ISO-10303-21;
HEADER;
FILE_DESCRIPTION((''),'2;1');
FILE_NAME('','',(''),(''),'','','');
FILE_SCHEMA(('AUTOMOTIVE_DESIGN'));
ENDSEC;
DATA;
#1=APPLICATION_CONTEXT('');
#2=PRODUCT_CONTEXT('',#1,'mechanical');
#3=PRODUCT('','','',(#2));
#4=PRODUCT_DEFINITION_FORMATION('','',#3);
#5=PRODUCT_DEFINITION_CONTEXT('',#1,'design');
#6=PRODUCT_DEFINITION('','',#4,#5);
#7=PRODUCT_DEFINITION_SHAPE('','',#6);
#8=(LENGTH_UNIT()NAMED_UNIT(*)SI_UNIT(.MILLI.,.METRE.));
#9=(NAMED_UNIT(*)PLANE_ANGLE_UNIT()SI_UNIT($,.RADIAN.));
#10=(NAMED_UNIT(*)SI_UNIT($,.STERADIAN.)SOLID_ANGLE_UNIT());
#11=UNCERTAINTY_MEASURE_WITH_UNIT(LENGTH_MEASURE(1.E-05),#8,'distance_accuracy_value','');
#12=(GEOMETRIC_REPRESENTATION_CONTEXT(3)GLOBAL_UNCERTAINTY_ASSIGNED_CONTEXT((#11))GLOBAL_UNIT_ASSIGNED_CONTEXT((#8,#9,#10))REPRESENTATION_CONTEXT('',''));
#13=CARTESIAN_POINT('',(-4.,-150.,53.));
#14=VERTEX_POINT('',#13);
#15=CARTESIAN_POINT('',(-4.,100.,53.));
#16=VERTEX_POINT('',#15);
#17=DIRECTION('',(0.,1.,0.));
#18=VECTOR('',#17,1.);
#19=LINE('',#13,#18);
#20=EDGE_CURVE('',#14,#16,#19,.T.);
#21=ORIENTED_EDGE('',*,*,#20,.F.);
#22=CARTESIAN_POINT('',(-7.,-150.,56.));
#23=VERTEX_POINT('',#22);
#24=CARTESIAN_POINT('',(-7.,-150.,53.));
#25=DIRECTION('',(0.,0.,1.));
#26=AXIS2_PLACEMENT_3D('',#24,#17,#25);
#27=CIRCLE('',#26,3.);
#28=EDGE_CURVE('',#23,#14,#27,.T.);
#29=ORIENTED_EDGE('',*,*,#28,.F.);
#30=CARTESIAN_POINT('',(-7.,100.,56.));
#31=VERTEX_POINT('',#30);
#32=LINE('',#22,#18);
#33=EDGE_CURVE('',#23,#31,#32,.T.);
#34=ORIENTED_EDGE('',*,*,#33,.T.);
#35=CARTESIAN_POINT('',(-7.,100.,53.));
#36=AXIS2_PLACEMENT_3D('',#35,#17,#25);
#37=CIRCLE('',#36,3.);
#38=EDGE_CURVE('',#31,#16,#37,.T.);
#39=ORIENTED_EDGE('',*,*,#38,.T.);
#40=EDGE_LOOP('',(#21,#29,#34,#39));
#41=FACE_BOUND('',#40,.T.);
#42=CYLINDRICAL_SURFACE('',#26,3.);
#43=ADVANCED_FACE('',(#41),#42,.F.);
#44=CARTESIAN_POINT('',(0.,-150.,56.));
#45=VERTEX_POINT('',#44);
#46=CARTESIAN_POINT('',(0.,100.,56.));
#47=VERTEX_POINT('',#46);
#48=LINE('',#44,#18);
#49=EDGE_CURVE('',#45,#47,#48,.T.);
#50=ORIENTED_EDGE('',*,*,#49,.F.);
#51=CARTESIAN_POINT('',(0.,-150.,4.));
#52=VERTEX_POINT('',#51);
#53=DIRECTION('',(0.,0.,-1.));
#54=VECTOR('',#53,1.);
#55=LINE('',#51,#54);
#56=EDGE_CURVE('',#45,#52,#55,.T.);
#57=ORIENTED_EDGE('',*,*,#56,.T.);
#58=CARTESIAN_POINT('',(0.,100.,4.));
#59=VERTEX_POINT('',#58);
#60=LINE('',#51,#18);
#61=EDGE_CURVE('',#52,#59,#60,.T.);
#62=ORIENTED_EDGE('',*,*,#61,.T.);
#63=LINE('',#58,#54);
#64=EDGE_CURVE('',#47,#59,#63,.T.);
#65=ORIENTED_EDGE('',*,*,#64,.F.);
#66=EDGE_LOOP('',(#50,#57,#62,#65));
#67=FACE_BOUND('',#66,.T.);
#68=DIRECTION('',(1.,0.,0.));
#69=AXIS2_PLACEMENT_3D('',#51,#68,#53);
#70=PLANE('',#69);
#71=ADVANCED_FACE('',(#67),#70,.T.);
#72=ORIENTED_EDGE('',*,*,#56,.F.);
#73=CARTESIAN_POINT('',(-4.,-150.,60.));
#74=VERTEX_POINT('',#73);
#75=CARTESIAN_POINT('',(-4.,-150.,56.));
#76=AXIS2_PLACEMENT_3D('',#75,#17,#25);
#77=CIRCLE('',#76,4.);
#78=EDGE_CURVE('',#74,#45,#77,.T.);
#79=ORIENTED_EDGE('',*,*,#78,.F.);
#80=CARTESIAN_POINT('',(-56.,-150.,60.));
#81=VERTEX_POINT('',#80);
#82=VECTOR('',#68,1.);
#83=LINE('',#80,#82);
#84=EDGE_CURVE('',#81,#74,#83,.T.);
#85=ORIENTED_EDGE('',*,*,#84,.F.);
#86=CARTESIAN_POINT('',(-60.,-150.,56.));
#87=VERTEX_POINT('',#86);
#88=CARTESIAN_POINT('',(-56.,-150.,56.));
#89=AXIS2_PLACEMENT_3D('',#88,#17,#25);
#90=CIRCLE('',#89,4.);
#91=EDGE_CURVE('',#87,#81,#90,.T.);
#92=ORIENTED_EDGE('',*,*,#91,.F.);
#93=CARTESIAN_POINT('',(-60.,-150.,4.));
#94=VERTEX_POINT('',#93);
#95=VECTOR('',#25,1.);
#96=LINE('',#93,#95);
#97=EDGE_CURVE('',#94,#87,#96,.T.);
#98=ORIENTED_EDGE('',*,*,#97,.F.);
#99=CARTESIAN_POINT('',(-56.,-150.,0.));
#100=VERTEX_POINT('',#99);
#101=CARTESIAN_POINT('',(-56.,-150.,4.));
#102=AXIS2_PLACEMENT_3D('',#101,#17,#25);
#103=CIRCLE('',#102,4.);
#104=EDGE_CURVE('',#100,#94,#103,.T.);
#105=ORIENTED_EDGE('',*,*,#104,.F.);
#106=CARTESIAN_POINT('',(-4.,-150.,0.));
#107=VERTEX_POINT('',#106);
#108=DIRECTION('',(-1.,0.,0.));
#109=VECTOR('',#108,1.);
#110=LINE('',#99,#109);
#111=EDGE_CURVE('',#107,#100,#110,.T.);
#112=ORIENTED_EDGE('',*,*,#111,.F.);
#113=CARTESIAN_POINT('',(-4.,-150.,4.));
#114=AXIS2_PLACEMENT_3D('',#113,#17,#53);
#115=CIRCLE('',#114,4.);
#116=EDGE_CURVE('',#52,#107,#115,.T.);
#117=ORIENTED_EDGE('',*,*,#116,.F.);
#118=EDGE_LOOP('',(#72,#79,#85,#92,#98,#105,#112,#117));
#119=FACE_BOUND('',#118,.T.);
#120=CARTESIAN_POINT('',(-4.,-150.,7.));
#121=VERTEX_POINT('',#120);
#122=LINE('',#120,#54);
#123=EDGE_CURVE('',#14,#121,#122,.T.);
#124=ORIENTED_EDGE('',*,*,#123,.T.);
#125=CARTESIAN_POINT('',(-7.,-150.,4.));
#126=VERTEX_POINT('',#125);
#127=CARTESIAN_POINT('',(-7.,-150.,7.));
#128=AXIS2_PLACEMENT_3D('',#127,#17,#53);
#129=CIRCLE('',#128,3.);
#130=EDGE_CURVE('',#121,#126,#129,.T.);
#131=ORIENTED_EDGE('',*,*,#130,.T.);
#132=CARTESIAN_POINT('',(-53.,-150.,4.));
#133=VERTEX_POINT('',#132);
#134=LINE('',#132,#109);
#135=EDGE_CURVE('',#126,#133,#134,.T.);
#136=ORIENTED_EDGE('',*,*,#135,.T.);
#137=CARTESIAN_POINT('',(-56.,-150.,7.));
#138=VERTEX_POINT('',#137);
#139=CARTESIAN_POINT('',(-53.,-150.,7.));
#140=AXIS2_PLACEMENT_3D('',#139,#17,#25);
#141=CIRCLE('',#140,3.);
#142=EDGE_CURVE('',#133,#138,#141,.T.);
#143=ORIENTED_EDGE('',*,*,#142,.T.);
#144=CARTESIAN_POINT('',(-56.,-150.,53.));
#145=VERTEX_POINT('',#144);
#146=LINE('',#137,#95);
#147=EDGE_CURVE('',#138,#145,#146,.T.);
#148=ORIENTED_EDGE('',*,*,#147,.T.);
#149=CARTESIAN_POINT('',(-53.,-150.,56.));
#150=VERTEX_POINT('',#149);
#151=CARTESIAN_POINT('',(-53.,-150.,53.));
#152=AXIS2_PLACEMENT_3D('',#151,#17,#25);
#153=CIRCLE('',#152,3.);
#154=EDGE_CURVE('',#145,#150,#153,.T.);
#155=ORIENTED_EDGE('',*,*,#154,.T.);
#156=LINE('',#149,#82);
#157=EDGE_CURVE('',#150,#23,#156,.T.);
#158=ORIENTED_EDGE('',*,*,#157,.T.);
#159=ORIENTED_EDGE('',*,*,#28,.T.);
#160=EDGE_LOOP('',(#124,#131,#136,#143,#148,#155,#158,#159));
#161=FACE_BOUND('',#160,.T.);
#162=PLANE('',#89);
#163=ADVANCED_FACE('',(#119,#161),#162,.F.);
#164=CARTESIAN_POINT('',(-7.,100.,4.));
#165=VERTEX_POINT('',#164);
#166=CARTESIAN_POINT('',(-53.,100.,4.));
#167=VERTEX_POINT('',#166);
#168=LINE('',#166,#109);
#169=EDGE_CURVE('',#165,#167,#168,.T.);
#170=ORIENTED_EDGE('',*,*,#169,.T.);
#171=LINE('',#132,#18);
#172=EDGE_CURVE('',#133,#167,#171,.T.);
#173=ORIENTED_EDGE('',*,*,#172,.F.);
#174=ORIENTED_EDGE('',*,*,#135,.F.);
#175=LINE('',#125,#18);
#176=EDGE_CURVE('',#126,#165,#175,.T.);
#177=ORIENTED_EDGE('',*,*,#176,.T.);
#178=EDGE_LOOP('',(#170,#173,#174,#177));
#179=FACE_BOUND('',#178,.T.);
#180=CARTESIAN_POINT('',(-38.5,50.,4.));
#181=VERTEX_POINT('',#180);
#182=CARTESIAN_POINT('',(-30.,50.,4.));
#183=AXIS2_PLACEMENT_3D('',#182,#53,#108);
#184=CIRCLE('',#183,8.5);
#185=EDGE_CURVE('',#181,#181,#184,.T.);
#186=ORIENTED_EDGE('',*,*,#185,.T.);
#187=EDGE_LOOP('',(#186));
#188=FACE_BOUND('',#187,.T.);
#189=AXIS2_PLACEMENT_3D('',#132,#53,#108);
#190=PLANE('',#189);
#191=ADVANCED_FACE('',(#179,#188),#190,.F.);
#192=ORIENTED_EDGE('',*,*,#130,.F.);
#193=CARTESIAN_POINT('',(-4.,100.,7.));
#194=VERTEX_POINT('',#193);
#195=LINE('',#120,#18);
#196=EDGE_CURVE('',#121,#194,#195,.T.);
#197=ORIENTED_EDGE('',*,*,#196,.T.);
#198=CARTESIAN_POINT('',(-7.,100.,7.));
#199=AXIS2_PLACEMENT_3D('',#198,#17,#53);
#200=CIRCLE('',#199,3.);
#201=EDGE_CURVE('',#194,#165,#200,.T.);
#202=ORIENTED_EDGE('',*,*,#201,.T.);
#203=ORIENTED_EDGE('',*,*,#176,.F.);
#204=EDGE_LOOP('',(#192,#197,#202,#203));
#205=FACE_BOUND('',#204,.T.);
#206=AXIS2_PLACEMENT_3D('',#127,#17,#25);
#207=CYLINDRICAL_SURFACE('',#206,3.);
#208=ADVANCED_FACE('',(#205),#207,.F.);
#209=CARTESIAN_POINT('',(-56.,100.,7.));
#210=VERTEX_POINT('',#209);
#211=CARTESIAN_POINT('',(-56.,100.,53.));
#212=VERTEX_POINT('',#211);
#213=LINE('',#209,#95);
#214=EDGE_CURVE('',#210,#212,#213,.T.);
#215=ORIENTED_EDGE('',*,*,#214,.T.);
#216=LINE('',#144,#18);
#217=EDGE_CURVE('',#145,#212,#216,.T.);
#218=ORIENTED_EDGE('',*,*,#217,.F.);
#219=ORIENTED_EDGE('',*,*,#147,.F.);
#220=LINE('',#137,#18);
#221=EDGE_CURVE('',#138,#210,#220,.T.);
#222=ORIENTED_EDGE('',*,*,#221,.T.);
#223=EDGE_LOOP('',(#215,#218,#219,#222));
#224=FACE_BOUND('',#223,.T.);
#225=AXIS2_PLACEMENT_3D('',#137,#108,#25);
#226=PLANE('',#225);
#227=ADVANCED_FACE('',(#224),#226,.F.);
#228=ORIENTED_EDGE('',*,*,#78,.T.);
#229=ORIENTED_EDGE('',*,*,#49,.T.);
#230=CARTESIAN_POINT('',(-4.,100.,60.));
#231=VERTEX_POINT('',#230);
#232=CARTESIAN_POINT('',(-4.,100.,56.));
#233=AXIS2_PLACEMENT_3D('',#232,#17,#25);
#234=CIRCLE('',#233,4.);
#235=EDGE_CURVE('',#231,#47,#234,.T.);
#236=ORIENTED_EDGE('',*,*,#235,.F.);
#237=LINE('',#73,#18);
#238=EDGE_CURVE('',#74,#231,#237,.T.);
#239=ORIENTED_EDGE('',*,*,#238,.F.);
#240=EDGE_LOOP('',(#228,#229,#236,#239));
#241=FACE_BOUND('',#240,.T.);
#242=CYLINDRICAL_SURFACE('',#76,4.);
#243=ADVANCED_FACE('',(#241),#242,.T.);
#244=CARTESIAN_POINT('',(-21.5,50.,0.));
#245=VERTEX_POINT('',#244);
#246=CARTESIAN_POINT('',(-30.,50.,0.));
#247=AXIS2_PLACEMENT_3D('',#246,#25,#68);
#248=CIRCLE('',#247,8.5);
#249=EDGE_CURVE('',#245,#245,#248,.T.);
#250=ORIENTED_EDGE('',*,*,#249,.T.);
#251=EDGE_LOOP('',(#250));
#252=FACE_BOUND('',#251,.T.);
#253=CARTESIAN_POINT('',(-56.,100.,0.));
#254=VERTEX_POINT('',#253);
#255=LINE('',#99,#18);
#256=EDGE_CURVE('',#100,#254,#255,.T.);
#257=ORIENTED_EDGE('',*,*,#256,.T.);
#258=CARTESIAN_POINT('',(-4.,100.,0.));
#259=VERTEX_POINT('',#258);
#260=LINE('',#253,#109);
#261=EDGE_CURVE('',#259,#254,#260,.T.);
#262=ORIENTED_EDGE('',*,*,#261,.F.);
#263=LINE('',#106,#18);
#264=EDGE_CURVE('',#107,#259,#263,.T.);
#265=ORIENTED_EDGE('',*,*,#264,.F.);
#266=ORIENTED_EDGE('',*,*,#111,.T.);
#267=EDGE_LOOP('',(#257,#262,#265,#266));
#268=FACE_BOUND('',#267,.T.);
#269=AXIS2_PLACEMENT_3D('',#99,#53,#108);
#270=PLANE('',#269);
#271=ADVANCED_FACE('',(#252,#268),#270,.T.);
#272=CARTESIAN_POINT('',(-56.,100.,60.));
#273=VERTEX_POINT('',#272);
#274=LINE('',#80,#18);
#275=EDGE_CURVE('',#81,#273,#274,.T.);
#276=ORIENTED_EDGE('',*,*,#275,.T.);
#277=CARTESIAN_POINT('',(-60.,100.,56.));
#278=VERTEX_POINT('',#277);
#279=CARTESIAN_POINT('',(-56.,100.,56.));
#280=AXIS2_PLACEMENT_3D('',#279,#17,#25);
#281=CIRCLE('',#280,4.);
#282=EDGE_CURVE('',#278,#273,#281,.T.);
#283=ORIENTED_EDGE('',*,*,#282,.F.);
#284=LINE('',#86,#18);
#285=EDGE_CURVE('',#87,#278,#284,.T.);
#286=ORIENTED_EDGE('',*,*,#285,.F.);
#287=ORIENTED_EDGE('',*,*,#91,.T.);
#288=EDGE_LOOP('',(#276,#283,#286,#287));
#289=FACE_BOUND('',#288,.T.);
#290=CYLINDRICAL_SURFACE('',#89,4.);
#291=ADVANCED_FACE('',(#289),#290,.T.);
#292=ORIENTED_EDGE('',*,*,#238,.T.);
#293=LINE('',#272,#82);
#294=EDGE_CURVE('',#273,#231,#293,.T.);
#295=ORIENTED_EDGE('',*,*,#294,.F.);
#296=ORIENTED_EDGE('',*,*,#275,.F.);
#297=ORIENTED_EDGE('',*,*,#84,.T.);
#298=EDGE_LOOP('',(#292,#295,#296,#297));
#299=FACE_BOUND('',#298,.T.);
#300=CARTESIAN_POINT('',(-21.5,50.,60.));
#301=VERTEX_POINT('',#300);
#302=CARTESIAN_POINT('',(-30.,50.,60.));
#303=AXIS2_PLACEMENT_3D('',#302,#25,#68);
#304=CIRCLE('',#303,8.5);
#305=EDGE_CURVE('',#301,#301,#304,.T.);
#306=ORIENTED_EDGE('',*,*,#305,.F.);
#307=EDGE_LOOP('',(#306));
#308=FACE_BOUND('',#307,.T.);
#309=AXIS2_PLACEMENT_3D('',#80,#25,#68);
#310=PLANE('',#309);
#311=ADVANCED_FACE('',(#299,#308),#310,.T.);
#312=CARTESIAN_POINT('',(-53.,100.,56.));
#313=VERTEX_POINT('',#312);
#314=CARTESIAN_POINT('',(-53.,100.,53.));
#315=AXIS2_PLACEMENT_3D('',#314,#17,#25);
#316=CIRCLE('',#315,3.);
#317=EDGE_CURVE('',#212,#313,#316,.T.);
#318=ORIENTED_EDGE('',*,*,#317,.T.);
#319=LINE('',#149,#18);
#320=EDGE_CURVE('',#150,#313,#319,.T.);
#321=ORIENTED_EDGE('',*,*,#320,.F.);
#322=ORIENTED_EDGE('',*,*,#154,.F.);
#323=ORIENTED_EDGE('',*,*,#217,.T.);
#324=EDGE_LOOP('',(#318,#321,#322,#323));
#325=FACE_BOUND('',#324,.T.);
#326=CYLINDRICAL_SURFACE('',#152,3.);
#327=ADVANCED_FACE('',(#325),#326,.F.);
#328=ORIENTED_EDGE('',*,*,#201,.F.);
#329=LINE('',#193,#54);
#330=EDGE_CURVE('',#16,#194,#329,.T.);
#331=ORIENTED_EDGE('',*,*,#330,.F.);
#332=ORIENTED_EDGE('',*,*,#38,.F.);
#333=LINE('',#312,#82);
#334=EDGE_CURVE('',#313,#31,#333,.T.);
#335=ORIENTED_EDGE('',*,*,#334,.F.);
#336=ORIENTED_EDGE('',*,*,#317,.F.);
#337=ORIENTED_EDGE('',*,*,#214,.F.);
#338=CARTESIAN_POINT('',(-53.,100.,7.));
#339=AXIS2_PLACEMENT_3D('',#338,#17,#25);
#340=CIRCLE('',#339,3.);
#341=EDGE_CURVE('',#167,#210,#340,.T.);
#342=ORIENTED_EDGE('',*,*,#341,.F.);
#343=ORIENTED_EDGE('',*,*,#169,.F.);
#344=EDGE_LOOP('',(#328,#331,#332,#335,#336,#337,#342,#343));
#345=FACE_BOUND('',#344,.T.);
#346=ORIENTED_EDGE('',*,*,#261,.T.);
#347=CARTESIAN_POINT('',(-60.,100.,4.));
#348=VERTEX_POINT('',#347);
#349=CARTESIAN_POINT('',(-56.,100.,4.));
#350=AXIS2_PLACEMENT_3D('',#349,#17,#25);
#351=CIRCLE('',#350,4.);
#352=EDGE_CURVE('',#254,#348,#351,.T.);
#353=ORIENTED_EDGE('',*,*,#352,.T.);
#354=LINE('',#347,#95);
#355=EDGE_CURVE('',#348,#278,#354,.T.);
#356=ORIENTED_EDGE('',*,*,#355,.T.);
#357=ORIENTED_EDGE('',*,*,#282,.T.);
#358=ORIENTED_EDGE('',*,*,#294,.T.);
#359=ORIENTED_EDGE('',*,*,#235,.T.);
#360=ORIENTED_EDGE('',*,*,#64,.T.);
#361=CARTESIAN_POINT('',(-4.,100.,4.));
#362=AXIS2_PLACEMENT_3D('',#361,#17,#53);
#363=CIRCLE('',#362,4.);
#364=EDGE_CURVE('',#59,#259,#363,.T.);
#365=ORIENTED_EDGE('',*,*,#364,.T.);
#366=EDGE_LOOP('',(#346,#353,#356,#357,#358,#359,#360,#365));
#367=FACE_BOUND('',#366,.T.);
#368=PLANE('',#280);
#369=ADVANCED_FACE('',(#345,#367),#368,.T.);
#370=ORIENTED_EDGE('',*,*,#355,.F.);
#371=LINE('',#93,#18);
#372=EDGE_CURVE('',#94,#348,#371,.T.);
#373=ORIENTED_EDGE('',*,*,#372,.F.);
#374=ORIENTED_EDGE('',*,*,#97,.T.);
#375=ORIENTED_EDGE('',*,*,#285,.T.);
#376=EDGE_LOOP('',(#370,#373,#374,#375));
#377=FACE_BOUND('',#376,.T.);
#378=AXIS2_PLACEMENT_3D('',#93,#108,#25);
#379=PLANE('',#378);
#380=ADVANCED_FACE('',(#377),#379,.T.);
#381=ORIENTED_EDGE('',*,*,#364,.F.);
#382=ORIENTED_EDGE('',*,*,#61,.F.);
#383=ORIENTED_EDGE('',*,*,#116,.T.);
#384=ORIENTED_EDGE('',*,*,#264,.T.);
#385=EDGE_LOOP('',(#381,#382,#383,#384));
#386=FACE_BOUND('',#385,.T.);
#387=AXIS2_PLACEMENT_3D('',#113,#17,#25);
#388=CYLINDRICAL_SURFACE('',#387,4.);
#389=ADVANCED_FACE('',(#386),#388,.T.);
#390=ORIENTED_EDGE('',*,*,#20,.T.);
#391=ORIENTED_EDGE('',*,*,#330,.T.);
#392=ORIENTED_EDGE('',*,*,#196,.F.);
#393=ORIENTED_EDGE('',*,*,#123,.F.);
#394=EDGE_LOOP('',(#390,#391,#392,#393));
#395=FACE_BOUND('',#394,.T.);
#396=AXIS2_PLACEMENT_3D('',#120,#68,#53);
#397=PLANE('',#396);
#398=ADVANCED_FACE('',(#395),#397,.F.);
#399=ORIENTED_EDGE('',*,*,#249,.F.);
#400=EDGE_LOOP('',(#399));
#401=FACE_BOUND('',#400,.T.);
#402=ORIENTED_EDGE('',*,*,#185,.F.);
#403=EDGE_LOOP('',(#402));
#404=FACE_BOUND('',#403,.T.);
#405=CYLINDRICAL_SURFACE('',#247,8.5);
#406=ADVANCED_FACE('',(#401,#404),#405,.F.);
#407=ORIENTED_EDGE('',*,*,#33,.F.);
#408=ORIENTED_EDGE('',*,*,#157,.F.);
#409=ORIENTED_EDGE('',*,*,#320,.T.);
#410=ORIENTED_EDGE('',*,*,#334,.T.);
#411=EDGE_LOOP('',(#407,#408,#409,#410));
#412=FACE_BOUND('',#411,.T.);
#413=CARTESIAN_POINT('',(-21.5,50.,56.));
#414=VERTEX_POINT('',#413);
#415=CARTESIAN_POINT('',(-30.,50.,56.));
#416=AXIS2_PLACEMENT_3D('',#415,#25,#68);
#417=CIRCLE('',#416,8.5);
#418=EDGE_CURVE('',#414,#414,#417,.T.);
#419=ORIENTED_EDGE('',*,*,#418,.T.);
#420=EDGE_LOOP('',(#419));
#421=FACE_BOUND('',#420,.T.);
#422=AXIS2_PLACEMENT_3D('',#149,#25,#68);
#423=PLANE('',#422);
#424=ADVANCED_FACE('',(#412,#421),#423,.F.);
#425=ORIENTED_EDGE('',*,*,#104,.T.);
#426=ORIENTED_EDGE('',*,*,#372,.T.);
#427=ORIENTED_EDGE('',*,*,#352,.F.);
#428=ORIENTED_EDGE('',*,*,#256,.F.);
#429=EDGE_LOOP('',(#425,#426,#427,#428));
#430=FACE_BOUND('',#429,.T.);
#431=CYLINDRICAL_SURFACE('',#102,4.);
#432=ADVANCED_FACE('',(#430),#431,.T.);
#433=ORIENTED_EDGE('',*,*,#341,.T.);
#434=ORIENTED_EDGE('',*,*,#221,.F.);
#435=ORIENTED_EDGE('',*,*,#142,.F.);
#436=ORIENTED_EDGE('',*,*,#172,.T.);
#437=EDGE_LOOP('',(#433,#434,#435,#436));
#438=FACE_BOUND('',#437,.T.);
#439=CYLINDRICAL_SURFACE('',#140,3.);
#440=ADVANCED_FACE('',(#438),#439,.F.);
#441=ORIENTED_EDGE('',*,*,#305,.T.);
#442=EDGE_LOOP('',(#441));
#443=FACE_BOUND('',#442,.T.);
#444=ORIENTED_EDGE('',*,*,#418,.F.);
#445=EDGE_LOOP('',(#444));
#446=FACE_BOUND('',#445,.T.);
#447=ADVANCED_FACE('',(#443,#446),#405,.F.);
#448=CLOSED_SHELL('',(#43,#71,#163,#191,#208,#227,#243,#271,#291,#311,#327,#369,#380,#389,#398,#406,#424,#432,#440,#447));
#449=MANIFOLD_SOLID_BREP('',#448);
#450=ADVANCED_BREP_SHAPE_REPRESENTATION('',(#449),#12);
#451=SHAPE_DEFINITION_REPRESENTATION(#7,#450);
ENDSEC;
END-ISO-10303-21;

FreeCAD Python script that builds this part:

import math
import FreeCAD as App
import Part
import Sketcher
from FreeCAD import Vector

doc = App.newDocument("Part")
body = doc.addObject("PartDesign::Body", "Body")

# Sketch on XZ plane
sketch1 = body.newObject("Sketcher::SketchObject", "Sketch")
sketch1.AttachmentSupport = (doc.getObject("XZ_Plane"), [""])
sketch1.MapMode = "FlatFace"
sketch1.addGeometry(Part.LineSegment(Vector(-4, 0, 0), Vector(-56, 0, 0)), False)
sketch1.addGeometry(Part.ArcOfCircle(Part.Circle(Vector(-56, 4, 0), Vector(0, 0, 1), 4), math.radians(180), math.radians(270)), False)
sketch1.addGeometry(Part.LineSegment(Vector(-60, 4, 0), Vector(-60, 56, 0)), False)
sketch1.addGeometry(Part.ArcOfCircle(Part.Circle(Vector(-56, 56, 0), Vector(0, 0, 1), 4), math.radians(90), math.radians(180)), False)
sketch1.addGeometry(Part.LineSegment(Vector(-56, 60, 0), Vector(-4, 60, 0)), False)
sketch1.addGeometry(Part.ArcOfCircle(Part.Circle(Vector(-4, 56, 0), Vector(0, 0, 1), 4), math.radians(0), math.radians(90)), False)
sketch1.addGeometry(Part.LineSegment(Vector(0, 56, 0), Vector(0, 4, 0)), False)
sketch1.addGeometry(Part.ArcOfCircle(Part.Circle(Vector(-4, 4, 0), Vector(0, 0, 1), 4), math.radians(-90), math.radians(0)), False)
sketch1.addGeometry(Part.LineSegment(Vector(-53, 4, 0), Vector(-7, 4, 0)), False)
sketch1.addGeometry(Part.ArcOfCircle(Part.Circle(Vector(-7, 7, 0), Vector(0, 0, 1), 3), math.radians(-90), math.radians(0)), False)
sketch1.addGeometry(Part.LineSegment(Vector(-4, 7, 0), Vector(-4, 53, 0)), False)
sketch1.addGeometry(Part.ArcOfCircle(Part.Circle(Vector(-7, 53, 0), Vector(0, 0, 1), 3), math.radians(0), math.radians(90)), False)
sketch1.addGeometry(Part.LineSegment(Vector(-7, 56, 0), Vector(-53, 56, 0)), False)
sketch1.addGeometry(Part.ArcOfCircle(Part.Circle(Vector(-53, 53, 0), Vector(0, 0, 1), 3), math.radians(90), math.radians(180)), False)
sketch1.addGeometry(Part.LineSegment(Vector(-56, 53, 0), Vector(-56, 7, 0)), False)
sketch1.addGeometry(Part.ArcOfCircle(Part.Circle(Vector(-53, 7, 0), Vector(0, 0, 1), 3), math.radians(180), math.radians(270)), False)
sketch1.addConstraint(Sketcher.Constraint("Tangent", 0, 2, 1, 2))
sketch1.addConstraint(Sketcher.Constraint("Tangent", 1, 1, 2, 1))
sketch1.addConstraint(Sketcher.Constraint("Tangent", 2, 2, 3, 2))
sketch1.addConstraint(Sketcher.Constraint("Tangent", 3, 1, 4, 1))
sketch1.addConstraint(Sketcher.Constraint("Tangent", 4, 2, 5, 2))
sketch1.addConstraint(Sketcher.Constraint("Tangent", 5, 1, 6, 1))
sketch1.addConstraint(Sketcher.Constraint("Tangent", 6, 2, 7, 2))
sketch1.addConstraint(Sketcher.Constraint("Tangent", 7, 1, 0, 1))
sketch1.addConstraint(Sketcher.Constraint("Tangent", 8, 2, 9, 1))
sketch1.addConstraint(Sketcher.Constraint("Tangent", 9, 2, 10, 1))
sketch1.addConstraint(Sketcher.Constraint("Tangent", 10, 2, 11, 1))
sketch1.addConstraint(Sketcher.Constraint("Tangent", 11, 2, 12, 1))
sketch1.addConstraint(Sketcher.Constraint("Tangent", 12, 2, 13, 1))
sketch1.addConstraint(Sketcher.Constraint("Tangent", 13, 2, 14, 1))
sketch1.addConstraint(Sketcher.Constraint("Tangent", 14, 2, 15, 1))
sketch1.addConstraint(Sketcher.Constraint("Tangent", 15, 2, 8, 1))
sketch1.addConstraint(Sketcher.Constraint("Horizontal", 0))
sketch1.addConstraint(Sketcher.Constraint("Vertical", 2))
sketch1.addConstraint(Sketcher.Constraint("Horizontal", 4))
sketch1.addConstraint(Sketcher.Constraint("Vertical", 6))
sketch1.addConstraint(Sketcher.Constraint("Horizontal", 8))
sketch1.addConstraint(Sketcher.Constraint("Vertical", 10))
sketch1.addConstraint(Sketcher.Constraint("Horizontal", 12))
sketch1.addConstraint(Sketcher.Constraint("Vertical", 14))
sketch1.addConstraint(Sketcher.Constraint("Equal", 1, 3))
sketch1.addConstraint(Sketcher.Constraint("Equal", 3, 5))
sketch1.addConstraint(Sketcher.Constraint("Equal", 5, 7))
sketch1.addConstraint(Sketcher.Constraint("Equal", 9, 11))
sketch1.addConstraint(Sketcher.Constraint("Equal", 11, 13))
sketch1.addConstraint(Sketcher.Constraint("Equal", 13, 15))
sketch1.addConstraint(Sketcher.Constraint("PointOnObject", 0, 2, -1))
sketch1.addConstraint(Sketcher.Constraint("PointOnObject", 5, 1, -2))
sketch1.addConstraint(Sketcher.Constraint("Horizontal", 6, 2, 8, 2))
sketch1.addConstraint(Sketcher.Constraint("Horizontal", 5, 1, 11, 2))
sketch1.addConstraint(Sketcher.Constraint("Vertical", 7, 1, 9, 2))
sketch1.addConstraint(Sketcher.Constraint("Vertical", 3, 1, 13, 2))
sketch1.addConstraint(Sketcher.Constraint("Equal", 4, 2))
sketch1.addConstraint(Sketcher.Constraint("Radius", 1, 4.0))
sketch1.addConstraint(Sketcher.Constraint("Radius", 9, 3.0))
sketch1.addConstraint(Sketcher.Constraint("DistanceX", 0, 2, 0, 1, 52.0))
pad1 = body.newObject("PartDesign::Pad", "Pad")
pad1.Profile = sketch1
pad1.Type = "TwoLengths"
pad1.Length = 100
pad1.Length2 = 150
pad1.Reversed = True

# Sketch on XY plane
sketch2 = body.newObject("Sketcher::SketchObject", "Sketch001")
sketch2.AttachmentSupport = (doc.getObject("XY_Plane"), [""])
sketch2.MapMode = "FlatFace"
sketch2.AttachmentOffset = App.Placement(Vector(0, 0, 60), App.Rotation())
sketch2.addGeometry(Part.Circle(Vector(-30, 50, 0), Vector(0, 0, 1), 8), False)
sketch2.addConstraint(Sketcher.Constraint("Diameter", 0, 17.0))
sketch2.addConstraint(Sketcher.Constraint("DistanceX", 0, 3, -1, 1, 30.0))
sketch2.addConstraint(Sketcher.Constraint("DistanceY", -1, 1, 0, 3, 50.0))
pocket1 = body.newObject("PartDesign::Pocket", "Pocket")
pocket1.Profile = sketch2
pocket1.Type = "ThroughAll"

doc.recompute()
